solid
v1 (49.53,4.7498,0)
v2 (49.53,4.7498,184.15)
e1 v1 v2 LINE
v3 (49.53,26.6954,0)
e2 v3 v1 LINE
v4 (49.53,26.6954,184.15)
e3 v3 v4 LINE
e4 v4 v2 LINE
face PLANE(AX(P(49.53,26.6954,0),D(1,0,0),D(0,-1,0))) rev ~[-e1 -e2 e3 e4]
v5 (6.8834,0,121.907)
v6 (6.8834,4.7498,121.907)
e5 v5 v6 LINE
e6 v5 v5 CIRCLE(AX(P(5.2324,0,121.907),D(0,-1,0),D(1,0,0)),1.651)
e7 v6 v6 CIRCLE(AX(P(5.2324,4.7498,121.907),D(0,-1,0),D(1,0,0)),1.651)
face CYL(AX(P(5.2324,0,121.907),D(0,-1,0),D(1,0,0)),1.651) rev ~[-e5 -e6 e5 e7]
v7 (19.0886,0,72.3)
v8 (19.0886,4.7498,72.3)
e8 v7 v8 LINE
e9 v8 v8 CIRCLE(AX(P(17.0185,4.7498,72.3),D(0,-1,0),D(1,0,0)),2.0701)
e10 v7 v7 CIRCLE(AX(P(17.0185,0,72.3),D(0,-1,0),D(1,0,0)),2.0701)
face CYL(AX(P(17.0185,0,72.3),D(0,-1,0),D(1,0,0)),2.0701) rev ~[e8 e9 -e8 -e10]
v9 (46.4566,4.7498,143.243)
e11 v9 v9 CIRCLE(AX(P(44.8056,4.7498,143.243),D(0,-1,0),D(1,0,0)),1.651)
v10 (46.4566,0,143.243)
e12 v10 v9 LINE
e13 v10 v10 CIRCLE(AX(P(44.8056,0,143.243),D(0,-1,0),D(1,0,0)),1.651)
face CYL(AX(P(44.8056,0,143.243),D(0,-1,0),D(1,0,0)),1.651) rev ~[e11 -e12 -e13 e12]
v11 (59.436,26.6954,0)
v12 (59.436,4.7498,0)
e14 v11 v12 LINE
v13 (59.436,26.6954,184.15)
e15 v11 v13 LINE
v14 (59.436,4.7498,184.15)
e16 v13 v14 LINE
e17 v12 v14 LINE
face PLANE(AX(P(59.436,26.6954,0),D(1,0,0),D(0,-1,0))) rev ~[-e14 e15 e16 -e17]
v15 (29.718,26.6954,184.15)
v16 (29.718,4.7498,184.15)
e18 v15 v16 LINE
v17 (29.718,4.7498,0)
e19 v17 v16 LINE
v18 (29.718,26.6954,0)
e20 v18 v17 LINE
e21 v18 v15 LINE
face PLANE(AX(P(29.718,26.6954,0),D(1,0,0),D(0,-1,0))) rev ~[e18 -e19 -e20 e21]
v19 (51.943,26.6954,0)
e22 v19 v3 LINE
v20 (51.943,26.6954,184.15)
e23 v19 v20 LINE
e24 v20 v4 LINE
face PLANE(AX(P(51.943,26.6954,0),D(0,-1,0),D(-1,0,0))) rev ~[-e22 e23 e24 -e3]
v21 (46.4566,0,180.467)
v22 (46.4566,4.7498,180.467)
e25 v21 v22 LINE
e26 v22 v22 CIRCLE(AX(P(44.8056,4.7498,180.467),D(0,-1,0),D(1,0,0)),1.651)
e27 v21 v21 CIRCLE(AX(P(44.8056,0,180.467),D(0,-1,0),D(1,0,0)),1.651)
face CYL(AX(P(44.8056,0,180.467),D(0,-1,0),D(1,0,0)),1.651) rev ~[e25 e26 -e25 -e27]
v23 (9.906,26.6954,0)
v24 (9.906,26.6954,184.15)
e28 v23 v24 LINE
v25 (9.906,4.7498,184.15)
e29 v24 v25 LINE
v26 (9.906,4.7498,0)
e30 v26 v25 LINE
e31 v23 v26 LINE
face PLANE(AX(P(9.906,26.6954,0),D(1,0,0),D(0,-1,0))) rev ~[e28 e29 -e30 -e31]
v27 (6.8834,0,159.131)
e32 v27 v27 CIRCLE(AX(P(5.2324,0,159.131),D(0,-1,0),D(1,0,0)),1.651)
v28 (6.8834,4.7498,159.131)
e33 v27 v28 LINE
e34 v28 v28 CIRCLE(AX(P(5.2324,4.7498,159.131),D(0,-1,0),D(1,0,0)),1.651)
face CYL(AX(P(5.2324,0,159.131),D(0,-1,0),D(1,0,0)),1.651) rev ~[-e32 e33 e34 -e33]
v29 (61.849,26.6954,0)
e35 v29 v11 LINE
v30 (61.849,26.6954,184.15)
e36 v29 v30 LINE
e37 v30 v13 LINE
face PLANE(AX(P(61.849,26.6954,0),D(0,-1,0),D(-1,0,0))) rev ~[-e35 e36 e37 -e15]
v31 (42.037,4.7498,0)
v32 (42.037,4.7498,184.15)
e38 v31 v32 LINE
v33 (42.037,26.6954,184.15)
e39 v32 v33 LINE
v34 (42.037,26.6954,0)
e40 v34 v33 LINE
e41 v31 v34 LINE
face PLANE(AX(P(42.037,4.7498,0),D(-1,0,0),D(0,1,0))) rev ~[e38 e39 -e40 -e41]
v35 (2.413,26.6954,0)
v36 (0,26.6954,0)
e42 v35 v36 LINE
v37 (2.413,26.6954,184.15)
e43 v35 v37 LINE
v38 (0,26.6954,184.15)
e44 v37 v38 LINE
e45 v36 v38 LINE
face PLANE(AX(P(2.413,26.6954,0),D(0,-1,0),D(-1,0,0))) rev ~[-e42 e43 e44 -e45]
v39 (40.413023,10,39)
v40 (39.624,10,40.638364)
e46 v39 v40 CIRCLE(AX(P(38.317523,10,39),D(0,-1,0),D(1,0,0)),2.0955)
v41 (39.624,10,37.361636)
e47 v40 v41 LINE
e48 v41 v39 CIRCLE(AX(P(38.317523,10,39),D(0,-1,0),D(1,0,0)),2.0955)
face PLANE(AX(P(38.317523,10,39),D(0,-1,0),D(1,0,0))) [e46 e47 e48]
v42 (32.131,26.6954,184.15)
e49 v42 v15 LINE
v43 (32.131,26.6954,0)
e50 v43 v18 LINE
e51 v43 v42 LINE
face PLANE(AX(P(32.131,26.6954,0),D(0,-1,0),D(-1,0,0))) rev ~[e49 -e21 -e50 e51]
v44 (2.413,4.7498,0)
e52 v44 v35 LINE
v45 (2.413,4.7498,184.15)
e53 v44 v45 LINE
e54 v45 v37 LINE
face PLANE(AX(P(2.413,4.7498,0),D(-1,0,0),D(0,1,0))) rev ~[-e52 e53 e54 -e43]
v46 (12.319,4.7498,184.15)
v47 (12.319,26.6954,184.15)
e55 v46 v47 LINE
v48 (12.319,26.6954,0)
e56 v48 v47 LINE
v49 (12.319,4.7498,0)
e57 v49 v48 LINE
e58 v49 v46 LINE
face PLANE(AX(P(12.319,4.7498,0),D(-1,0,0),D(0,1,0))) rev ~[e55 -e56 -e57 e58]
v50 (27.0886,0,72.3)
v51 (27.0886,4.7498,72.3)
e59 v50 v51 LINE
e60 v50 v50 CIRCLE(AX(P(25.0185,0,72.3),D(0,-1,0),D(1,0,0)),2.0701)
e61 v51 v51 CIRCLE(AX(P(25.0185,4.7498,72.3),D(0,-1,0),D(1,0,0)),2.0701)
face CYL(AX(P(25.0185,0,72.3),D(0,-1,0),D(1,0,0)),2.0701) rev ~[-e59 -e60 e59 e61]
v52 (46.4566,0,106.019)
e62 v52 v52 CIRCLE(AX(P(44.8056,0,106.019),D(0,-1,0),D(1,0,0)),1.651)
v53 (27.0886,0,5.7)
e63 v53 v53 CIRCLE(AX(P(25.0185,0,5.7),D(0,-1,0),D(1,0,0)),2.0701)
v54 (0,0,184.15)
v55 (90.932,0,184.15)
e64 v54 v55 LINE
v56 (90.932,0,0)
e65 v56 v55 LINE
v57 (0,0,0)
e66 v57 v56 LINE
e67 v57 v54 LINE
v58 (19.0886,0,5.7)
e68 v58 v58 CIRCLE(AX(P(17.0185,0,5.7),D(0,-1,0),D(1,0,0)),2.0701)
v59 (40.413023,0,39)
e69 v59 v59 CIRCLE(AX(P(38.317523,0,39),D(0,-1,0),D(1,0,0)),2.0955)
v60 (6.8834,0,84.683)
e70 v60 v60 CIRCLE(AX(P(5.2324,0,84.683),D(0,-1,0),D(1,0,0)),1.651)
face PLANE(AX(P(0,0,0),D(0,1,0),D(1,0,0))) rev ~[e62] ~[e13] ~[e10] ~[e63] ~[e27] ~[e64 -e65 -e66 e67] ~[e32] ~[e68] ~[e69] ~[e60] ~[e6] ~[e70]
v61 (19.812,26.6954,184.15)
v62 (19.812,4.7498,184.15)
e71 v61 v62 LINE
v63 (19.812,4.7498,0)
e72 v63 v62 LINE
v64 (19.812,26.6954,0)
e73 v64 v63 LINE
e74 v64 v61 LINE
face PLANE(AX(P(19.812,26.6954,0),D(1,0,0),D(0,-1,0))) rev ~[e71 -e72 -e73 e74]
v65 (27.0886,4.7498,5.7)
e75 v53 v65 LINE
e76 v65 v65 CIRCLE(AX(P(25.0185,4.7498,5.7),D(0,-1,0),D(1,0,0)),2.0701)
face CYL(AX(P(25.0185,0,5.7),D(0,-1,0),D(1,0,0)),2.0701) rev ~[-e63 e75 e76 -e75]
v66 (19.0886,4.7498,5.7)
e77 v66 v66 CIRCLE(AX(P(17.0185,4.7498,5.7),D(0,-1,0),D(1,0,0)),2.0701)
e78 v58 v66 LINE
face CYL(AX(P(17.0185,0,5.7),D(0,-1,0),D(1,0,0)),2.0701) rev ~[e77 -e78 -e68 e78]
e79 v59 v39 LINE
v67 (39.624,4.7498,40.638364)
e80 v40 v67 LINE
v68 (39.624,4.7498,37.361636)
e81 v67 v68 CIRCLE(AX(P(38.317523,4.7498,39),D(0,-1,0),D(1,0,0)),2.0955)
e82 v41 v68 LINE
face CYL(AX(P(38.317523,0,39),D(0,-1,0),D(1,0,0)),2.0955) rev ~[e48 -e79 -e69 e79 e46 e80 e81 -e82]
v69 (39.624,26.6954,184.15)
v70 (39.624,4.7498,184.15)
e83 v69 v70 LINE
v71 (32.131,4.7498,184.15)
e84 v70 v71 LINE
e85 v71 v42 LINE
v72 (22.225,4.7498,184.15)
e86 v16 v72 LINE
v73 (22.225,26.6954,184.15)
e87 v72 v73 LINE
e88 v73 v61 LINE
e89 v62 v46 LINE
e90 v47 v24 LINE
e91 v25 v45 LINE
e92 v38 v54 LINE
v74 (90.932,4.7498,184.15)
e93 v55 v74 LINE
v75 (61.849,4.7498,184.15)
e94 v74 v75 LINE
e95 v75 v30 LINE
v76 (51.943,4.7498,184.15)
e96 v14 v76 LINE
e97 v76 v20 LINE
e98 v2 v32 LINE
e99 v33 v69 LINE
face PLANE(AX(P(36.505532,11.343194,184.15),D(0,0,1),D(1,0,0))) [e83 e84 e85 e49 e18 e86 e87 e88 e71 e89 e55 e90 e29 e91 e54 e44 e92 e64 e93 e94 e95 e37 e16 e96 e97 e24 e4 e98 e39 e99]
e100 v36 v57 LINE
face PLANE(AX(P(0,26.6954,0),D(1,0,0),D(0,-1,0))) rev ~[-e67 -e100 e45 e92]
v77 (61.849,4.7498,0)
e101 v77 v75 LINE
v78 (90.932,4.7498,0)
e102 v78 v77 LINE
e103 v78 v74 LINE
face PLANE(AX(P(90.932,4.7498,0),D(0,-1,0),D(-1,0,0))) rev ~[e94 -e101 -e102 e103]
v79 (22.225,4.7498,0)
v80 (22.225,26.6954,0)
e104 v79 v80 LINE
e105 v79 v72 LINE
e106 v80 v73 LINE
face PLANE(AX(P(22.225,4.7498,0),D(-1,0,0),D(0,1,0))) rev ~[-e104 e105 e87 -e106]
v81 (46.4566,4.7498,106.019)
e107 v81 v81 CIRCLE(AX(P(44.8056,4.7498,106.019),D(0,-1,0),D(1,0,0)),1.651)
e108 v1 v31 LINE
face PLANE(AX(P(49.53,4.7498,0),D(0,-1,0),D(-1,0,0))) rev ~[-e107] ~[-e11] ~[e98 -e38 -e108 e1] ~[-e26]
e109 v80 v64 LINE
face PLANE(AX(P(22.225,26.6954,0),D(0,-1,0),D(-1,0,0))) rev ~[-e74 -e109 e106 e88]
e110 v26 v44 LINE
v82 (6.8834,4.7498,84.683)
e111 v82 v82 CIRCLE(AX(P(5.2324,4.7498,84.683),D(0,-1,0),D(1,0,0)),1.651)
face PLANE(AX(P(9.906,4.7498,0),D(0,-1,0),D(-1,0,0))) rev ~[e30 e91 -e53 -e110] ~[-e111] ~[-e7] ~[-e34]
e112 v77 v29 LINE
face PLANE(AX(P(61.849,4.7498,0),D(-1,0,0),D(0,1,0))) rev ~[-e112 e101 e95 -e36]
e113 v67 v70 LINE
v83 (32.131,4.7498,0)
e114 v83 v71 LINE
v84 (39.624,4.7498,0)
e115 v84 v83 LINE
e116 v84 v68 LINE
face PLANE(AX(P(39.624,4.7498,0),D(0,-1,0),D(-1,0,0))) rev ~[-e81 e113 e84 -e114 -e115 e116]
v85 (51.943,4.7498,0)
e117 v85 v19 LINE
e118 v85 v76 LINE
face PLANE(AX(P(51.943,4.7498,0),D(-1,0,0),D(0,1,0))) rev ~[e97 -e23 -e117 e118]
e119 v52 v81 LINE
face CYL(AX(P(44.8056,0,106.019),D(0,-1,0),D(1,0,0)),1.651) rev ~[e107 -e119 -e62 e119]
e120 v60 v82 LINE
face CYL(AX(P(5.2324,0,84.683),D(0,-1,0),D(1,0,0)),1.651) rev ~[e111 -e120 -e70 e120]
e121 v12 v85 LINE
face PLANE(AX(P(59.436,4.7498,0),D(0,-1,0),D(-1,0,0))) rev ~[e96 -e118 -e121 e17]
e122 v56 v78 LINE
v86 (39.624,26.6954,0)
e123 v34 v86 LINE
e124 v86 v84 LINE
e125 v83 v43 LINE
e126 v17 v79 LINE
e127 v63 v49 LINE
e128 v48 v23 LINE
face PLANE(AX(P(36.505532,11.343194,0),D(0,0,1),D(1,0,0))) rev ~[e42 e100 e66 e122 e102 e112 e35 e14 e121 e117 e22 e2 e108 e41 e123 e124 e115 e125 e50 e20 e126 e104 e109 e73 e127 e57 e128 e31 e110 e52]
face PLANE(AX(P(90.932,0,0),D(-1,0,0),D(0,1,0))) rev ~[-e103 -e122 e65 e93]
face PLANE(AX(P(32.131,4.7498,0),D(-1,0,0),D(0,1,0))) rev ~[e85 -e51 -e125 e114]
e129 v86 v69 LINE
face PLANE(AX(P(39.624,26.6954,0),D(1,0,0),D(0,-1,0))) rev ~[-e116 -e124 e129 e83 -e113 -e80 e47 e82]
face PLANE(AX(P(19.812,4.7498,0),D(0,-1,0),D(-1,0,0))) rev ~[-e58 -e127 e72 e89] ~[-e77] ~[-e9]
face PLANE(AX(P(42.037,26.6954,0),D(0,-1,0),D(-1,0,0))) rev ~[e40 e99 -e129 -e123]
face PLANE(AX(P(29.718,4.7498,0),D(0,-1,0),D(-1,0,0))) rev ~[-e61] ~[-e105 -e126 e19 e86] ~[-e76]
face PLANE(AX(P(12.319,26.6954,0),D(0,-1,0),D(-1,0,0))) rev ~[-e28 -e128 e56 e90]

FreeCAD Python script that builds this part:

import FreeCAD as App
import Part
import Sketcher
from FreeCAD import Vector
Q = App.Units.Quantity


def add_polygon(sketch, points):
    """Adds a closed chain of lines whose ends are joined by coincident constraints."""
    first, n = sketch.GeometryCount, len(points)
    for a, b in zip(points, points[1:] + points[:1]):
        sketch.addGeometry(Part.LineSegment(App.Vector(*a, 0), App.Vector(*b, 0)), False)
    for i in range(n):
        sketch.addConstraint(Sketcher.Constraint("Coincident", first + i, 2, first + (i + 1) % n, 1))

doc = App.newDocument("Part")
body = doc.addObject("PartDesign::Body", "Body")

sketch1 = body.newObject("Sketcher::SketchObject", "Sketch")
sketch1.AttachmentSupport = (doc.getObject("XY_Plane"), [""])
sketch1.MapMode = "FlatFace"
add_polygon(sketch1, [(0, 26.7), (0, 0), (90.9, 0), (90.9, 4.7), (61.8, 4.7), (61.8, 26.7), (59.4, 26.7), (59.4, 4.7), (51.9, 4.7), (51.9, 26.7), (49.5, 26.7), (49.5, 4.7), (42, 4.7), (42, 26.7), (39.6, 26.7), (39.6, 4.7), (32.1, 4.7), (32.1, 26.7), (29.7, 26.7), (29.7, 4.7), (22.2, 4.7), (22.2, 26.7), (19.8, 26.7), (19.8, 4.7), (12.3, 4.7), (12.3, 26.7), (9.9, 26.7), (9.9, 4.7), (2.4, 4.7), (2.4, 26.7)])
sketch1.addConstraint(Sketcher.Constraint("Vertical", 0))
sketch1.addConstraint(Sketcher.Constraint("Horizontal", 1))
sketch1.addConstraint(Sketcher.Constraint("Vertical", 2))
sketch1.addConstraint(Sketcher.Constraint("Horizontal", 3))
sketch1.addConstraint(Sketcher.Constraint("Vertical", 4))
sketch1.addConstraint(Sketcher.Constraint("Horizontal", 5))
sketch1.addConstraint(Sketcher.Constraint("Vertical", 6))
sketch1.addConstraint(Sketcher.Constraint("Horizontal", 7))
sketch1.addConstraint(Sketcher.Constraint("Vertical", 8))
sketch1.addConstraint(Sketcher.Constraint("Horizontal", 9))
sketch1.addConstraint(Sketcher.Constraint("Vertical", 10))
sketch1.addConstraint(Sketcher.Constraint("Horizontal", 11))
sketch1.addConstraint(Sketcher.Constraint("Vertical", 12))
sketch1.addConstraint(Sketcher.Constraint("Horizontal", 13))
sketch1.addConstraint(Sketcher.Constraint("Vertical", 14))
sketch1.addConstraint(Sketcher.Constraint("Horizontal", 15))
sketch1.addConstraint(Sketcher.Constraint("Vertical", 16))
sketch1.addConstraint(Sketcher.Constraint("Horizontal", 17))
sketch1.addConstraint(Sketcher.Constraint("Vertical", 18))
sketch1.addConstraint(Sketcher.Constraint("Horizontal", 19))
sketch1.addConstraint(Sketcher.Constraint("Vertical", 20))
sketch1.addConstraint(Sketcher.Constraint("Horizontal", 21))
sketch1.addConstraint(Sketcher.Constraint("Vertical", 22))
sketch1.addConstraint(Sketcher.Constraint("Horizontal", 23))
sketch1.addConstraint(Sketcher.Constraint("Vertical", 24))
sketch1.addConstraint(Sketcher.Constraint("Horizontal", 25))
sketch1.addConstraint(Sketcher.Constraint("Vertical", 26))
sketch1.addConstraint(Sketcher.Constraint("Horizontal", 27))
sketch1.addConstraint(Sketcher.Constraint("Vertical", 28))
sketch1.addConstraint(Sketcher.Constraint("Horizontal", 29))
sketch1.addConstraint(Sketcher.Constraint("Coincident", 0, 2, -1, 1))
sketch1.addConstraint(Sketcher.Constraint("Horizontal", 3, 2, 6, 2))
sketch1.addConstraint(Sketcher.Constraint("Horizontal", 5, 2, 8, 2))
sketch1.addConstraint(Sketcher.Constraint("Horizontal", 7, 2, 10, 2))
sketch1.addConstraint(Sketcher.Constraint("Horizontal", 9, 2, 12, 2))
sketch1.addConstraint(Sketcher.Constraint("Horizontal", 11, 2, 14, 2))
sketch1.addConstraint(Sketcher.Constraint("Horizontal", 13, 2, 16, 2))
sketch1.addConstraint(Sketcher.Constraint("Horizontal", 15, 2, 18, 2))
sketch1.addConstraint(Sketcher.Constraint("Horizontal", 17, 2, 20, 2))
sketch1.addConstraint(Sketcher.Constraint("Horizontal", 19, 2, 22, 2))
sketch1.addConstraint(Sketcher.Constraint("Horizontal", 21, 2, 24, 2))
sketch1.addConstraint(Sketcher.Constraint("Horizontal", 23, 2, 26, 2))
sketch1.addConstraint(Sketcher.Constraint("Horizontal", 25, 2, 28, 2))
sketch1.addConstraint(Sketcher.Constraint("Equal", 5, 9))
sketch1.addConstraint(Sketcher.Constraint("Equal", 7, 11))
sketch1.addConstraint(Sketcher.Constraint("Equal", 9, 13))
sketch1.addConstraint(Sketcher.Constraint("Equal", 11, 15))
sketch1.addConstraint(Sketcher.Constraint("Equal", 13, 17))
sketch1.addConstraint(Sketcher.Constraint("Equal", 15, 19))
sketch1.addConstraint(Sketcher.Constraint("Equal", 17, 21))
sketch1.addConstraint(Sketcher.Constraint("Equal", 19, 23))
sketch1.addConstraint(Sketcher.Constraint("Equal", 21, 25))
sketch1.addConstraint(Sketcher.Constraint("Equal", 23, 27))
sketch1.addConstraint(Sketcher.Constraint("Equal", 25, 29))
sketch1.addConstraint(Sketcher.Constraint("DistanceX", 1, 1, 1, 2, Q("3.58 in")))
sketch1.addConstraint(Sketcher.Constraint("DistanceX", 3, 2, 3, 1, Q("1.145 in")))
sketch1.addConstraint(Sketcher.Constraint("DistanceX", 5, 2, 5, 1, Q("0.095 in")))
sketch1.addConstraint(Sketcher.Constraint("DistanceY", 0, 2, 0, 1, Q("1.051 in")))
sketch1.addConstraint(Sketcher.Constraint("DistanceY", 2, 1, 2, 2, Q("0.187 in")))
pad1 = body.newObject("PartDesign::Pad", "Pad")
pad1.Profile = sketch1
pad1.Length = Q("7.25 in")

sketch2 = body.newObject("Sketcher::SketchObject", "Sketch001")
sketch2.AttachmentSupport = (doc.getObject("XZ_Plane"), [""])
sketch2.MapMode = "FlatFace"
sketch2.addGeometry(Part.Circle(Vector(5.2, 159.1, 0), Vector(0, 0, 1), 1.7), False)
sketch2.addGeometry(Part.Circle(Vector(44.8, 180.5, 0), Vector(0, 0, 1), 1.7), False)
sketch2.addGeometry(Part.Circle(Vector(44.8, 143.2, 0), Vector(0, 0, 1), 1.7), False)
sketch2.addGeometry(Part.Circle(Vector(5.2, 121.9, 0), Vector(0, 0, 1), 1.7), False)
sketch2.addGeometry(Part.Circle(Vector(5.2, 84.7, 0), Vector(0, 0, 1), 1.7), False)
sketch2.addGeometry(Part.Circle(Vector(44.8, 106, 0), Vector(0, 0, 1), 1.7), False)
sketch2.addGeometry(Part.Circle(Vector(17, 72.3, 0), Vector(0, 0, 1), 2.1), False)
sketch2.addGeometry(Part.Circle(Vector(25, 72.3, 0), Vector(0, 0, 1), 2.1), False)
sketch2.addGeometry(Part.Circle(Vector(25, 5.7, 0), Vector(0, 0, 1), 2.1), False)
sketch2.addGeometry(Part.Circle(Vector(17, 5.7, 0), Vector(0, 0, 1), 2.1), False)
sketch2.addGeometry(Part.Circle(Vector(38.3, 39, 0), Vector(0, 0, 1), 2.1), False)
sketch2.addConstraint(Sketcher.Constraint("Equal", 0, 1))
sketch2.addConstraint(Sketcher.Constraint("Equal", 1, 2))
sketch2.addConstraint(Sketcher.Constraint("Equal", 2, 3))
sketch2.addConstraint(Sketcher.Constraint("Equal", 3, 4))
sketch2.addConstraint(Sketcher.Constraint("Equal", 4, 5))
sketch2.addConstraint(Sketcher.Constraint("Equal", 6, 7))
sketch2.addConstraint(Sketcher.Constraint("Equal", 7, 8))
sketch2.addConstraint(Sketcher.Constraint("Equal", 8, 9))
sketch2.addConstraint(Sketcher.Constraint("Horizontal", 6, 3, 7, 3))
sketch2.addConstraint(Sketcher.Constraint("Horizontal", 8, 3, 9, 3))
sketch2.addConstraint(Sketcher.Constraint("Vertical", 1, 3, 2, 3))
sketch2.addConstraint(Sketcher.Constraint("Vertical", 0, 3, 3, 3))
sketch2.addConstraint(Sketcher.Constraint("Vertical", 3, 3, 4, 3))
sketch2.addConstraint(Sketcher.Constraint("Vertical", 2, 3, 5, 3))
sketch2.addConstraint(Sketcher.Constraint("Vertical", 7, 3, 8, 3))
sketch2.addConstraint(Sketcher.Constraint("Vertical", 6, 3, 9, 3))
sketch2.addConstraint(Sketcher.Constraint("Diameter", 0, Q("0.13 in")))
sketch2.addConstraint(Sketcher.Constraint("Diameter", 6, Q("0.163 in")))
sketch2.addConstraint(Sketcher.Constraint("Diameter", 10, Q("0.165 in")))
sketch2.addConstraint(Sketcher.Constraint("DistanceY", 0, 3, 1, 3, Q("0.84 in")))
sketch2.addConstraint(Sketcher.Constraint("DistanceY", 3, 3, 2, 3, Q("0.84 in")))
sketch2.addConstraint(Sketcher.Constraint("DistanceY", 4, 3, 5, 3, Q("0.84 in")))
sketch2.addConstraint(Sketcher.Constraint("DistanceX", -1, 1, 0, 3, Q("0.206 in")))
sketch2.addConstraint(Sketcher.Constraint("DistanceY", -1, 1, 0, 3, Q("6.265 in")))
sketch2.addConstraint(Sketcher.Constraint("DistanceX", -1, 1, 1, 3, Q("1.764 in")))
sketch2.addConstraint(Sketcher.Constraint("DistanceY", -1, 1, 2, 3, Q("143.243 mm")))
sketch2.addConstraint(Sketcher.Constraint("DistanceY", -1, 1, 4, 3, Q("84.683 mm")))
sketch2.addConstraint(Sketcher.Constraint("DistanceX", -1, 1, 6, 3, Q("17.0185 mm")))
sketch2.addConstraint(Sketcher.Constraint("DistanceY", -1, 1, 6, 3, Q("72.3 mm")))
sketch2.addConstraint(Sketcher.Constraint("DistanceX", -1, 1, 7, 3, Q("25.0185 mm")))
sketch2.addConstraint(Sketcher.Constraint("DistanceY", -1, 1, 8, 3, Q("5.7 mm")))
sketch2.addConstraint(Sketcher.Constraint("DistanceY", -1, 1, 10, 3, Q("39 mm")))
sketch2.addConstraint(Sketcher.Constraint("DistanceX", -1, 1, 10, 3, Q("38.317523 mm")))
pocket1 = body.newObject("PartDesign::Pocket", "Pocket")
pocket1.Profile = sketch2
pocket1.Length = 10

doc.recompute()
